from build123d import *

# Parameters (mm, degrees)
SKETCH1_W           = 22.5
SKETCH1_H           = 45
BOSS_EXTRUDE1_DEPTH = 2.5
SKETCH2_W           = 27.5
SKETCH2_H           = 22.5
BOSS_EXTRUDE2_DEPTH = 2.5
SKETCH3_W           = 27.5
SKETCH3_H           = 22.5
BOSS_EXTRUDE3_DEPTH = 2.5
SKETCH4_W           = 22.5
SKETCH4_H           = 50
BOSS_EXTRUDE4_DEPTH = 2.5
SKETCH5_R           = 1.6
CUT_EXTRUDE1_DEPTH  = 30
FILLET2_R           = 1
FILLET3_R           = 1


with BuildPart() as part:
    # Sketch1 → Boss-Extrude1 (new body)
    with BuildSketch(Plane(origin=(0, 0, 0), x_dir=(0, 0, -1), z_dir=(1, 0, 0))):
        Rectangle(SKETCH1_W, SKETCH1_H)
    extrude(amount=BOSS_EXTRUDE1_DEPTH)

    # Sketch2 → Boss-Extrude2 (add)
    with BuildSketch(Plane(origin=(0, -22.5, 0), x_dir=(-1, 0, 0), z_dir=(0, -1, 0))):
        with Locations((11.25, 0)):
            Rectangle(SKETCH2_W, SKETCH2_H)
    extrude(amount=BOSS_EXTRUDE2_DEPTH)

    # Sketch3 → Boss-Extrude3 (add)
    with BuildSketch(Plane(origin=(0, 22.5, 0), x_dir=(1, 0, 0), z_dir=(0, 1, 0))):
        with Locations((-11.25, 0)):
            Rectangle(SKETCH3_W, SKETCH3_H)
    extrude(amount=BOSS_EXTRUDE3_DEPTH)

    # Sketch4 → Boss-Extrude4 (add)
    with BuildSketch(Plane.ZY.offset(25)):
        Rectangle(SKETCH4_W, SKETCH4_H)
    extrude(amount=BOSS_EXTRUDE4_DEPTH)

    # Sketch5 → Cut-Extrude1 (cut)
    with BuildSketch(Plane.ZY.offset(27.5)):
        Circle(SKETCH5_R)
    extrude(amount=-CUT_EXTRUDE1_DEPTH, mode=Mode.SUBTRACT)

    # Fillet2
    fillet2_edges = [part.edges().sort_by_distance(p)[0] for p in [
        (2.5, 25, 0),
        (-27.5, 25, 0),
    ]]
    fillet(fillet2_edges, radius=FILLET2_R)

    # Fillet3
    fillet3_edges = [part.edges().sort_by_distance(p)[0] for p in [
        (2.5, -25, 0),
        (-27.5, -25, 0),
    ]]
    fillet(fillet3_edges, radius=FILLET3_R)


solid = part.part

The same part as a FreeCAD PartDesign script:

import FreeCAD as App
import Part
import Sketcher
Q = App.Units.Quantity


def edges_at(feature, points):
    """Names of the edges that pass closest to the given points."""
    edges = feature.Shape.Edges
    near = lambda p: min(range(len(edges)), key=lambda i: edges[i].distToShape(Part.Vertex(*p))[0])
    return sorted({f"Edge{near(p) + 1}" for p in points})


def add_polygon(sketch, points):
    """Adds a closed chain of lines whose ends are joined by coincident constraints."""
    first, n = sketch.GeometryCount, len(points)
    for a, b in zip(points, points[1:] + points[:1]):
        sketch.addGeometry(Part.LineSegment(App.Vector(*a, 0), App.Vector(*b, 0)), False)
    for i in range(n):
        sketch.addConstraint(Sketcher.Constraint("Coincident", first + i, 2, first + (i + 1) % n, 1))

doc = App.newDocument("Part")
body = doc.addObject("PartDesign::Body", "Body")

# Sketch on YZ plane
sketch1 = body.newObject("Sketcher::SketchObject", "Sketch")
sketch1.AttachmentSupport = (doc.getObject("YZ_Plane"), [""])
sketch1.MapMode = "FlatFace"
add_polygon(sketch1, [(22, 11), (-22, 11), (-22, -11), (22, -11)])  # lines 0-3
sketch1.addConstraint([
    Sketcher.Constraint("Horizontal", 0),
    Sketcher.Constraint("Vertical", 1),
    Sketcher.Constraint("Horizontal", 2),
    Sketcher.Constraint("Vertical", 3),
    Sketcher.Constraint("Symmetric", 0, 2, 2, 2, -1, 1),
    Sketcher.Constraint("DistanceX", 0, 2, 0, 1, Q("45 mm")),
    Sketcher.Constraint("DistanceY", 1, 2, 1, 1, Q("22.5 mm")),
])
pad1 = body.newObject("PartDesign::Pad", "Pad")
pad1.Profile = sketch1
pad1.Length = 2.5

# Sketch on XZ plane
sketch2 = body.newObject("Sketcher::SketchObject", "Sketch001")
sketch2.AttachmentSupport = (doc.getObject("XZ_Plane"), [""])
sketch2.MapMode = "FlatFace"
sketch2.AttachmentOffset = App.Placement(App.Vector(0, 0, 22.5), App.Rotation())
add_polygon(sketch2, [(2, -11), (2, 11), (-25, 11), (-25, -11)])  # lines 0-3
sketch2.addConstraint([
    Sketcher.Constraint("Vertical", 0),
    Sketcher.Constraint("Horizontal", 1),
    Sketcher.Constraint("Vertical", 2),
    Sketcher.Constraint("Horizontal", 3),
    Sketcher.Constraint("DistanceX", 1, 2, 1, 1, Q("27.5 mm")),
    Sketcher.Constraint("DistanceY", 0, 1, 0, 2, Q("22.5 mm")),
    Sketcher.Constraint("DistanceX", 1, 2, -1, 1, Q("25 mm")),
    Sketcher.Constraint("DistanceY", -1, 1, 0, 2, Q("11.25 mm")),
])
pad2 = body.newObject("PartDesign::Pad", "Pad001")
pad2.Profile = sketch2
pad2.Length = 2.5

# Sketch on XZ plane
sketch3 = body.newObject("Sketcher::SketchObject", "Sketch002")
sketch3.AttachmentSupport = (doc.getObject("XZ_Plane"), [""])
sketch3.MapMode = "FlatFace"
sketch3.AttachmentOffset = App.Placement(App.Vector(0, 0, -22.5), App.Rotation())
add_polygon(sketch3, [(-25, -11), (-25, 11), (2, 11), (2, -11)])  # lines 0-3
sketch3.addConstraint([
    Sketcher.Constraint("Vertical", 0),
    Sketcher.Constraint("Horizontal", 1),
    Sketcher.Constraint("Vertical", 2),
    Sketcher.Constraint("Horizontal", 3),
    Sketcher.Constraint("DistanceX", 1, 1, 1, 2, Q("27.5 mm")),
    Sketcher.Constraint("DistanceY", 0, 1, 0, 2, Q("22.5 mm")),
    Sketcher.Constraint("DistanceX", 0, 2, -1, 1, Q("25 mm")),
    Sketcher.Constraint("DistanceY", -1, 1, 0, 2, Q("11.25 mm")),
])
pad3 = body.newObject("PartDesign::Pad", "Pad002")
pad3.Profile = sketch3
pad3.Length = 2.5
pad3.Reversed = True

# Sketch on YZ plane
sketch4 = body.newObject("Sketcher::SketchObject", "Sketch003")
sketch4.AttachmentSupport = (doc.getObject("YZ_Plane"), [""])
sketch4.MapMode = "FlatFace"
sketch4.AttachmentOffset = App.Placement(App.Vector(0, 0, -25), App.Rotation())
add_polygon(sketch4, [(25, -11), (-25, -11), (-25, 11), (25, 11)])  # lines 0-3
sketch4.addConstraint([
    Sketcher.Constraint("Horizontal", 0),
    Sketcher.Constraint("Vertical", 1),
    Sketcher.Constraint("Horizontal", 2),
    Sketcher.Constraint("Vertical", 3),
    Sketcher.Constraint("Symmetric", 0, 2, 2, 2, -1, 1),
    Sketcher.Constraint("DistanceX", 0, 2, 0, 1, Q("50 mm")),
    Sketcher.Constraint("DistanceY", 1, 1, 1, 2, Q("22.5 mm")),
])
pad4 = body.newObject("PartDesign::Pad", "Pad003")
pad4.Profile = sketch4
pad4.Length = 2.5
pad4.Reversed = True

# Sketch on YZ plane
sketch5 = body.newObject("Sketcher::SketchObject", "Sketch004")
sketch5.AttachmentSupport = (doc.getObject("YZ_Plane"), [""])
sketch5.MapMode = "FlatFace"
sketch5.AttachmentOffset = App.Placement(App.Vector(0, 0, -27.5), App.Rotation())
sketch5.addGeometry(Part.Circle(App.Vector(0, 0, 0), App.Vector(0, 0, 1), 1.6), False)
sketch5.addConstraint([
    Sketcher.Constraint("Coincident", 0, 3, -1, 1),
    Sketcher.Constraint("Diameter", 0, Q("3.2 mm")),
])
pocket1 = body.newObject("PartDesign::Pocket", "Pocket")
pocket1.Profile = sketch5
pocket1.Length = 30
pocket1.Reversed = True
doc.recompute()

fillet = body.newObject("PartDesign::Fillet", "Fillet")
fillet.Base = (pocket1, edges_at(pocket1, [(2.5, 25, 0), (-27.5, 25, 0)]))
fillet.Radius = 1
doc.recompute()

fillet2 = body.newObject("PartDesign::Fillet", "Fillet001")
fillet2.Base = (fillet, edges_at(fillet, [(2.5, -25, 0), (-27.5, -25, 0)]))
fillet2.Radius = 1

doc.recompute()
